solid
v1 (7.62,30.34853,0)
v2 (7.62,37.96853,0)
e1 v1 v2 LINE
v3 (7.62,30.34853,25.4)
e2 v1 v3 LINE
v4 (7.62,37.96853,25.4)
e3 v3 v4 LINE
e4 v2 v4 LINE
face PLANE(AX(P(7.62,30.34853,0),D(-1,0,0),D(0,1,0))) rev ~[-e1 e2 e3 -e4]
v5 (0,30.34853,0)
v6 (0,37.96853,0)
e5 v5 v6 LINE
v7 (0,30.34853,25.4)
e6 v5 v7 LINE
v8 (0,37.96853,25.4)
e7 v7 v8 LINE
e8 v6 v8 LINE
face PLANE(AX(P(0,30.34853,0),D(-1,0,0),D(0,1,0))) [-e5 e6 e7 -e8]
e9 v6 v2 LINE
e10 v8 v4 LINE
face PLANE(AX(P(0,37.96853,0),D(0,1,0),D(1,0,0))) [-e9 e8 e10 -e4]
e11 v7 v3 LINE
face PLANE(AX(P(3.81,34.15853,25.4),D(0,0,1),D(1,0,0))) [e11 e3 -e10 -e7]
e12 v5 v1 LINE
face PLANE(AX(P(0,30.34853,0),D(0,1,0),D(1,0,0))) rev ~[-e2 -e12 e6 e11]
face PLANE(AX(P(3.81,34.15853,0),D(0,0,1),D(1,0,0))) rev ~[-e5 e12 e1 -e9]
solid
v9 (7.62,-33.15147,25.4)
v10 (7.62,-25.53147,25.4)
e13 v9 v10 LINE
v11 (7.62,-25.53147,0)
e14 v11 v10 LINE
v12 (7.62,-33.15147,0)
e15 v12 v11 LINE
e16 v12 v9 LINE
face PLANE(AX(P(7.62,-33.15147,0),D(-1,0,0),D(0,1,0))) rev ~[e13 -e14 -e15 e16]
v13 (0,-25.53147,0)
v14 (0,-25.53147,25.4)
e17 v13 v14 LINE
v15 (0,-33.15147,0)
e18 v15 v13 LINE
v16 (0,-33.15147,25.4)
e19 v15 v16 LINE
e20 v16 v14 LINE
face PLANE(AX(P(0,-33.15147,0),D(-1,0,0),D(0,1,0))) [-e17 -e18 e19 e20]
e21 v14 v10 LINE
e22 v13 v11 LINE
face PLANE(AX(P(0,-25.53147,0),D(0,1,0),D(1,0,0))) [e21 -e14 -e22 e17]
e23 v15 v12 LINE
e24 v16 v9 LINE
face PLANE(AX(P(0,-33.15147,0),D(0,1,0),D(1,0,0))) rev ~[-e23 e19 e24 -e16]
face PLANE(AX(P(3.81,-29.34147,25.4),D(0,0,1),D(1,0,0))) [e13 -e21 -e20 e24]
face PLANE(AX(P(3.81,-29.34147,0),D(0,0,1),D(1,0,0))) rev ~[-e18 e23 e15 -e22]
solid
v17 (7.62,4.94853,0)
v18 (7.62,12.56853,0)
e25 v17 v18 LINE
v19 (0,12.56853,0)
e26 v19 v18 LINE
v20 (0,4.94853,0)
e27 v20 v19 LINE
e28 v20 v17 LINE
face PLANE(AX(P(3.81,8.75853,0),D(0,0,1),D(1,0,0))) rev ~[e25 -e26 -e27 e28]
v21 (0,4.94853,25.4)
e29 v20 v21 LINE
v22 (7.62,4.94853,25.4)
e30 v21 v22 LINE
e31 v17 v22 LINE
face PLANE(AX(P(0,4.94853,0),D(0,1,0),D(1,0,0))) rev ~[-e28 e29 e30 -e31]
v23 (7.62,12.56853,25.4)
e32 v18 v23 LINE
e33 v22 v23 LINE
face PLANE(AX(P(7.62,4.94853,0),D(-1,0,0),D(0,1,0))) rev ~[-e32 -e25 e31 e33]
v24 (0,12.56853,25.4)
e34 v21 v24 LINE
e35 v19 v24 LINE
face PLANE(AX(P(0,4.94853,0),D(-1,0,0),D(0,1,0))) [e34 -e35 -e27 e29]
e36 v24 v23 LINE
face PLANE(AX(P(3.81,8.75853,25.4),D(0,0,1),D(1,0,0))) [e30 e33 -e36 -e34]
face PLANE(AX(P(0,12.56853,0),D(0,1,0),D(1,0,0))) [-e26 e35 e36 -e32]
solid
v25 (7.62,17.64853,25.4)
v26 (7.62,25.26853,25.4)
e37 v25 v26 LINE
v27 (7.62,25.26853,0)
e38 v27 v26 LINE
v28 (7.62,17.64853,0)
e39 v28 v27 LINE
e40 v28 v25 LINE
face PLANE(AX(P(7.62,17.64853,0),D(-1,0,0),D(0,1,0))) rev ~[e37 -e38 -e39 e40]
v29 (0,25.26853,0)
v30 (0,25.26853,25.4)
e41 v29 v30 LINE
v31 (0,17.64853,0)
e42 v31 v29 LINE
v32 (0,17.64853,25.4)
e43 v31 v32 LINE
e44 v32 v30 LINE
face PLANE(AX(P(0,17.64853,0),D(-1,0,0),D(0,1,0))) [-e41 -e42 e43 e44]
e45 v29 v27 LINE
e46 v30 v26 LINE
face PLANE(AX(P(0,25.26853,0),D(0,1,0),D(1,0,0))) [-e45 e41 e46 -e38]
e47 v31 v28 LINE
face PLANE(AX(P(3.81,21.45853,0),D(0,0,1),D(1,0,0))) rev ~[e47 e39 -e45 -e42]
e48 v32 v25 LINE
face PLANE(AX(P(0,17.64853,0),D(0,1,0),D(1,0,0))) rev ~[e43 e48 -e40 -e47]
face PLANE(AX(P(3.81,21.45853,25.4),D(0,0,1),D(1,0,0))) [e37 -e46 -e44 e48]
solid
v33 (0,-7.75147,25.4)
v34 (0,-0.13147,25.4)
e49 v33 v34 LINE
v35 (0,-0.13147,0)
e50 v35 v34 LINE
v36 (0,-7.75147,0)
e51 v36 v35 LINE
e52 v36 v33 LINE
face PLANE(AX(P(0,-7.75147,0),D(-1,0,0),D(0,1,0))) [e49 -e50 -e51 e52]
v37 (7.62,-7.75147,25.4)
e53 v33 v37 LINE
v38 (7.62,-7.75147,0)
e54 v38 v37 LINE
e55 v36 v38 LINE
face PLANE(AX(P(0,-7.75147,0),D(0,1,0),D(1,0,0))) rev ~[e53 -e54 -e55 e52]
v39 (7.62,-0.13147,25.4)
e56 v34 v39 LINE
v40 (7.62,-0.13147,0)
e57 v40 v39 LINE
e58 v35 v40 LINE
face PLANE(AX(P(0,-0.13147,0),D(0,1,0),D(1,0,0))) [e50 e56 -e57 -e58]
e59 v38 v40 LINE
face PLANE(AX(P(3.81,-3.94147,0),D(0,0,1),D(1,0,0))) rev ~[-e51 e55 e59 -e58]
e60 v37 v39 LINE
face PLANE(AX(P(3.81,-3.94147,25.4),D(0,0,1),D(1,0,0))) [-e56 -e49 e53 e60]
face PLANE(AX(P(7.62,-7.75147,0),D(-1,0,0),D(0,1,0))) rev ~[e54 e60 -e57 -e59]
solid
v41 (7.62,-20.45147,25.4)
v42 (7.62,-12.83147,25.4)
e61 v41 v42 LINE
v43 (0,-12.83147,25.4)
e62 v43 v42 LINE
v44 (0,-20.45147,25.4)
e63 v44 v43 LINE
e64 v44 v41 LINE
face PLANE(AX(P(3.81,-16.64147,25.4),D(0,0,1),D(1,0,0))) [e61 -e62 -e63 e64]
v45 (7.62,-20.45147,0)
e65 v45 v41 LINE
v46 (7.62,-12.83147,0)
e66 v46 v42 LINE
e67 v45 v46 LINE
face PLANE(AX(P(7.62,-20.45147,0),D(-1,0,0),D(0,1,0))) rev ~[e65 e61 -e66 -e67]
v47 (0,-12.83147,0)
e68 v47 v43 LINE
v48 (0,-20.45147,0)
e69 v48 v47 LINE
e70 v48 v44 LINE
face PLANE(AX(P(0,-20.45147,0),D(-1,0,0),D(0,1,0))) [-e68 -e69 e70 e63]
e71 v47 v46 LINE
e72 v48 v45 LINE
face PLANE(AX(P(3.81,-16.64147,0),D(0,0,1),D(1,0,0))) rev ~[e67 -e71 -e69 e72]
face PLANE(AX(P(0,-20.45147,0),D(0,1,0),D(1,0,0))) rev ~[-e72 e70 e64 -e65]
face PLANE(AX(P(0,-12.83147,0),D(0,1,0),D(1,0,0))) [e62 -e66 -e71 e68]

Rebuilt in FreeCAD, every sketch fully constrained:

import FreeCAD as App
import Part
import Sketcher
Q = App.Units.Quantity

doc = App.newDocument("Part")
body = doc.addObject("PartDesign::Body", "Body")
body.AllowCompound = True

# Sketch on XY plane
sketch1 = body.newObject("Sketcher::SketchObject", "Sketch")
sketch1.AttachmentSupport = (doc.getObject("XY_Plane"), [""])
sketch1.MapMode = "FlatFace"
sketch1.addGeometry([
    Part.LineSegment(App.Vector(0, 38, 0), App.Vector(0, 30, 0)),  # 0
    Part.LineSegment(App.Vector(0, 30, 0), App.Vector(8, 30, 0)),  # 1
    Part.LineSegment(App.Vector(8, 30, 0), App.Vector(8, 38, 0)),  # 2
    Part.LineSegment(App.Vector(8, 38, 0), App.Vector(0, 38, 0)),  # 3
    Part.LineSegment(App.Vector(0, 25, 0), App.Vector(0, 18, 0)),  # 4
    Part.LineSegment(App.Vector(0, 18, 0), App.Vector(8, 18, 0)),  # 5
    Part.LineSegment(App.Vector(8, 18, 0), App.Vector(8, 25, 0)),  # 6
    Part.LineSegment(App.Vector(8, 25, 0), App.Vector(0, 25, 0)),  # 7
    Part.LineSegment(App.Vector(0, 13, 0), App.Vector(0, 5, 0)),  # 8
    Part.LineSegment(App.Vector(0, 5, 0), App.Vector(8, 5, 0)),  # 9
    Part.LineSegment(App.Vector(8, 5, 0), App.Vector(8, 13, 0)),  # 10
    Part.LineSegment(App.Vector(8, 13, 0), App.Vector(0, 13, 0)),  # 11
    Part.LineSegment(App.Vector(0, 0, 0), App.Vector(0, -8, 0)),  # 12
    Part.LineSegment(App.Vector(0, -8, 0), App.Vector(8, -8, 0)),  # 13
    Part.LineSegment(App.Vector(8, -8, 0), App.Vector(8, 0, 0)),  # 14
    Part.LineSegment(App.Vector(8, 0, 0), App.Vector(0, 0, 0)),  # 15
    Part.LineSegment(App.Vector(0, -13, 0), App.Vector(0, -20, 0)),  # 16
    Part.LineSegment(App.Vector(0, -20, 0), App.Vector(8, -20, 0)),  # 17
    Part.LineSegment(App.Vector(8, -20, 0), App.Vector(8, -13, 0)),  # 18
    Part.LineSegment(App.Vector(8, -13, 0), App.Vector(0, -13, 0)),  # 19
    Part.LineSegment(App.Vector(0, -26, 0), App.Vector(0, -33, 0)),  # 20
    Part.LineSegment(App.Vector(0, -33, 0), App.Vector(8, -33, 0)),  # 21
    Part.LineSegment(App.Vector(8, -33, 0), App.Vector(8, -26, 0)),  # 22
    Part.LineSegment(App.Vector(8, -26, 0), App.Vector(0, -26, 0)),  # 23
], False)
sketch1.addConstraint([
    Sketcher.Constraint("Coincident", 0, 2, 1, 1),
    Sketcher.Constraint("Coincident", 1, 2, 2, 1),
    Sketcher.Constraint("Coincident", 2, 2, 3, 1),
    Sketcher.Constraint("Coincident", 3, 2, 0, 1),
    Sketcher.Constraint("Coincident", 4, 2, 5, 1),
    Sketcher.Constraint("Coincident", 5, 2, 6, 1),
    Sketcher.Constraint("Coincident", 6, 2, 7, 1),
    Sketcher.Constraint("Coincident", 7, 2, 4, 1),
    Sketcher.Constraint("Coincident", 8, 2, 9, 1),
    Sketcher.Constraint("Coincident", 9, 2, 10, 1),
    Sketcher.Constraint("Coincident", 10, 2, 11, 1),
    Sketcher.Constraint("Coincident", 11, 2, 8, 1),
    Sketcher.Constraint("Coincident", 12, 2, 13, 1),
    Sketcher.Constraint("Coincident", 13, 2, 14, 1),
    Sketcher.Constraint("Coincident", 14, 2, 15, 1),
    Sketcher.Constraint("Coincident", 15, 2, 12, 1),
    Sketcher.Constraint("Coincident", 16, 2, 17, 1),
    Sketcher.Constraint("Coincident", 17, 2, 18, 1),
    Sketcher.Constraint("Coincident", 18, 2, 19, 1),
    Sketcher.Constraint("Coincident", 19, 2, 16, 1),
    Sketcher.Constraint("Coincident", 20, 2, 21, 1),
    Sketcher.Constraint("Coincident", 21, 2, 22, 1),
    Sketcher.Constraint("Coincident", 22, 2, 23, 1),
    Sketcher.Constraint("Coincident", 23, 2, 20, 1),
    Sketcher.Constraint("Vertical", 0),
    Sketcher.Constraint("Horizontal", 1),
    Sketcher.Constraint("Vertical", 2),
    Sketcher.Constraint("Horizontal", 3),
    Sketcher.Constraint("Vertical", 4),
    Sketcher.Constraint("Horizontal", 5),
    Sketcher.Constraint("Vertical", 6),
    Sketcher.Constraint("Horizontal", 7),
    Sketcher.Constraint("Vertical", 8),
    Sketcher.Constraint("Horizontal", 9),
    Sketcher.Constraint("Vertical", 10),
    Sketcher.Constraint("Horizontal", 11),
    Sketcher.Constraint("Vertical", 12),
    Sketcher.Constraint("Horizontal", 13),
    Sketcher.Constraint("Vertical", 14),
    Sketcher.Constraint("Horizontal", 15),
    Sketcher.Constraint("Vertical", 16),
    Sketcher.Constraint("Horizontal", 17),
    Sketcher.Constraint("Vertical", 18),
    Sketcher.Constraint("Horizontal", 19),
    Sketcher.Constraint("Vertical", 20),
    Sketcher.Constraint("Horizontal", 21),
    Sketcher.Constraint("Vertical", 22),
    Sketcher.Constraint("Horizontal", 23),
    Sketcher.Constraint("PointOnObject", 0, 2, -2),
    Sketcher.Constraint("PointOnObject", 4, 2, -2),
    Sketcher.Constraint("PointOnObject", 8, 2, -2),
    Sketcher.Constraint("PointOnObject", 12, 2, -2),
    Sketcher.Constraint("PointOnObject", 16, 2, -2),
    Sketcher.Constraint("PointOnObject", 20, 2, -2),
    Sketcher.Constraint("Vertical", 2, 2, 5, 2),
    Sketcher.Constraint("Vertical", 6, 2, 9, 2),
    Sketcher.Constraint("Vertical", 10, 2, 13, 2),
    Sketcher.Constraint("Vertical", 14, 2, 17, 2),
    Sketcher.Constraint("Vertical", 18, 2, 21, 2),
    Sketcher.Constraint("Equal", 23, 0),
    Sketcher.Constraint("Equal", 2, 4),
    Sketcher.Constraint("Equal", 6, 8),
    Sketcher.Constraint("Equal", 10, 12),
    Sketcher.Constraint("Equal", 14, 16),
    Sketcher.Constraint("Equal", 18, 20),
    Sketcher.Constraint("DistanceX", 1, 1, 1, 2, Q("0.3 in")),
    Sketcher.Constraint("DistanceY", 8, 2, 0, 2, Q("1 in")),
    Sketcher.Constraint("DistanceY", 12, 2, 4, 2, Q("1 in")),
    Sketcher.Constraint("DistanceY", 16, 2, 8, 2, Q("1 in")),
    Sketcher.Constraint("DistanceY", 20, 2, 12, 2, Q("1 in")),
    Sketcher.Constraint("DistanceY", 4, 2, 0, 2, Q("0.5 in")),
    Sketcher.Constraint("DistanceY", -1, 1, 0, 2, Q("30.34853 mm")),
])
pad1 = body.newObject("PartDesign::Pad", "Pad")
pad1.Profile = sketch1
pad1.Length = Q("1 in")

doc.recompute()
